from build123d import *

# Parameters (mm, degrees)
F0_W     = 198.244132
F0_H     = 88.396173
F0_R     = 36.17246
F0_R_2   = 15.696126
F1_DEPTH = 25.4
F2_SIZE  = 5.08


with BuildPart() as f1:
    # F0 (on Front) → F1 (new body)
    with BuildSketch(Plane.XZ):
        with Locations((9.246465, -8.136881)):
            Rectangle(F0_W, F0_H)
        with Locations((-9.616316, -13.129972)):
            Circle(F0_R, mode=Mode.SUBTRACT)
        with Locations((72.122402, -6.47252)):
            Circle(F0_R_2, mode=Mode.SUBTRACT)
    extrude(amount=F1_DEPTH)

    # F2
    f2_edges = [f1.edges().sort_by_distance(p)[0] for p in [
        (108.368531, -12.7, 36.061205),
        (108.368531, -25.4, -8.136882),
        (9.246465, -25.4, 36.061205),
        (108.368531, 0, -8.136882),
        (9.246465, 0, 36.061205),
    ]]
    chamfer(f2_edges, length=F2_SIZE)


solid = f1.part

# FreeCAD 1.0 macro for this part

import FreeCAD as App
import Part
import Sketcher

V = App.Vector
Q = App.Units.Quantity


def edges_at(feature, points):
    """Names of the edges that pass closest to the given points."""
    edges = feature.Shape.Edges
    near = lambda p: min(range(len(edges)), key=lambda i: edges[i].distToShape(Part.Vertex(*p))[0])
    return sorted({f"Edge{near(p) + 1}" for p in points})

doc = App.newDocument("Part")
params = doc.addObject("Spreadsheet::Sheet", "Params")
for row, (alias, value) in enumerate([
    ("pad1_length", "1 in"),
    ("chamfer_size", "0.2 in"),
], start=1):
    params.set(f"A{row}", alias)
    params.set(f"B{row}", "=" + value)
    params.setAlias(f"B{row}", alias)

body = doc.addObject("PartDesign::Body", "Body")

sketch1 = body.newObject("Sketcher::SketchObject", "Sketch")
sketch1.AttachmentSupport = (doc.getObject("XZ_Plane"), [""])
sketch1.MapMode = "FlatFace"
sketch1.addGeometry([
    Part.LineSegment(V(-90, 36, 0), V(-90, -52, 0)),
    Part.LineSegment(V(-90, -52, 0), V(108, -52, 0)),
    Part.LineSegment(V(108, -52, 0), V(108, 36, 0)),
    Part.LineSegment(V(108, 36, 0), V(-90, 36, 0)),
    Part.Circle(V(-10, -13, 0), V(0, 0, 1), 36),
    Part.Circle(V(72, -6, 0), V(0, 0, 1), 16),
], False)
sketch1.addConstraint([
    Sketcher.Constraint("Coincident", 0, 2, 1, 1),
    Sketcher.Constraint("Coincident", 1, 2, 2, 1),
    Sketcher.Constraint("Coincident", 2, 2, 3, 1),
    Sketcher.Constraint("Coincident", 3, 2, 0, 1),
    Sketcher.Constraint("Vertical", 0),
    Sketcher.Constraint("Horizontal", 1),
    Sketcher.Constraint("Vertical", 2),
    Sketcher.Constraint("Horizontal", 3),
    Sketcher.Constraint("Diameter", 4, Q("72.34492 mm")),
    Sketcher.Constraint("Diameter", 5, Q("31.392252 mm")),
    Sketcher.Constraint("DistanceX", 1, 1, 1, 2, Q("198.244132 mm")),
    Sketcher.Constraint("DistanceX", -1, 1, 5, 3, Q("72.122402 mm")),
    Sketcher.Constraint("DistanceX", 0, 2, -1, 1, Q("89.875601 mm")),
    Sketcher.Constraint("DistanceY", 0, 2, 0, 1, Q("88.396173 mm")),
    Sketcher.Constraint("DistanceY", 5, 3, -1, 1, Q("6.47252 mm")),
    Sketcher.Constraint("DistanceX", 4, 3, -1, 1, Q("9.616316 mm")),
    Sketcher.Constraint("DistanceY", 4, 3, -1, 1, Q("13.129972 mm")),
    Sketcher.Constraint("DistanceY", 0, 2, -1, 1, Q("52.334967 mm")),
])
pad1 = body.newObject("PartDesign::Pad", "Pad")
pad1.Profile = sketch1
pad1.setExpression("Length", "Params.pad1_length")
doc.recompute()

chamfer = body.newObject("PartDesign::Chamfer", "Chamfer")
chamfer.Base = (pad1, edges_at(pad1, [
    (108.369, -12.7, 36.061),
    (108.369, -25.4, -8.137),
    (9.246, -25.4, 36.061),
    (108.369, 0, -8.137),
    (9.246, 0, 36.061),
]))
chamfer.setExpression("Size", "Params.chamfer_size")

doc.recompute()
